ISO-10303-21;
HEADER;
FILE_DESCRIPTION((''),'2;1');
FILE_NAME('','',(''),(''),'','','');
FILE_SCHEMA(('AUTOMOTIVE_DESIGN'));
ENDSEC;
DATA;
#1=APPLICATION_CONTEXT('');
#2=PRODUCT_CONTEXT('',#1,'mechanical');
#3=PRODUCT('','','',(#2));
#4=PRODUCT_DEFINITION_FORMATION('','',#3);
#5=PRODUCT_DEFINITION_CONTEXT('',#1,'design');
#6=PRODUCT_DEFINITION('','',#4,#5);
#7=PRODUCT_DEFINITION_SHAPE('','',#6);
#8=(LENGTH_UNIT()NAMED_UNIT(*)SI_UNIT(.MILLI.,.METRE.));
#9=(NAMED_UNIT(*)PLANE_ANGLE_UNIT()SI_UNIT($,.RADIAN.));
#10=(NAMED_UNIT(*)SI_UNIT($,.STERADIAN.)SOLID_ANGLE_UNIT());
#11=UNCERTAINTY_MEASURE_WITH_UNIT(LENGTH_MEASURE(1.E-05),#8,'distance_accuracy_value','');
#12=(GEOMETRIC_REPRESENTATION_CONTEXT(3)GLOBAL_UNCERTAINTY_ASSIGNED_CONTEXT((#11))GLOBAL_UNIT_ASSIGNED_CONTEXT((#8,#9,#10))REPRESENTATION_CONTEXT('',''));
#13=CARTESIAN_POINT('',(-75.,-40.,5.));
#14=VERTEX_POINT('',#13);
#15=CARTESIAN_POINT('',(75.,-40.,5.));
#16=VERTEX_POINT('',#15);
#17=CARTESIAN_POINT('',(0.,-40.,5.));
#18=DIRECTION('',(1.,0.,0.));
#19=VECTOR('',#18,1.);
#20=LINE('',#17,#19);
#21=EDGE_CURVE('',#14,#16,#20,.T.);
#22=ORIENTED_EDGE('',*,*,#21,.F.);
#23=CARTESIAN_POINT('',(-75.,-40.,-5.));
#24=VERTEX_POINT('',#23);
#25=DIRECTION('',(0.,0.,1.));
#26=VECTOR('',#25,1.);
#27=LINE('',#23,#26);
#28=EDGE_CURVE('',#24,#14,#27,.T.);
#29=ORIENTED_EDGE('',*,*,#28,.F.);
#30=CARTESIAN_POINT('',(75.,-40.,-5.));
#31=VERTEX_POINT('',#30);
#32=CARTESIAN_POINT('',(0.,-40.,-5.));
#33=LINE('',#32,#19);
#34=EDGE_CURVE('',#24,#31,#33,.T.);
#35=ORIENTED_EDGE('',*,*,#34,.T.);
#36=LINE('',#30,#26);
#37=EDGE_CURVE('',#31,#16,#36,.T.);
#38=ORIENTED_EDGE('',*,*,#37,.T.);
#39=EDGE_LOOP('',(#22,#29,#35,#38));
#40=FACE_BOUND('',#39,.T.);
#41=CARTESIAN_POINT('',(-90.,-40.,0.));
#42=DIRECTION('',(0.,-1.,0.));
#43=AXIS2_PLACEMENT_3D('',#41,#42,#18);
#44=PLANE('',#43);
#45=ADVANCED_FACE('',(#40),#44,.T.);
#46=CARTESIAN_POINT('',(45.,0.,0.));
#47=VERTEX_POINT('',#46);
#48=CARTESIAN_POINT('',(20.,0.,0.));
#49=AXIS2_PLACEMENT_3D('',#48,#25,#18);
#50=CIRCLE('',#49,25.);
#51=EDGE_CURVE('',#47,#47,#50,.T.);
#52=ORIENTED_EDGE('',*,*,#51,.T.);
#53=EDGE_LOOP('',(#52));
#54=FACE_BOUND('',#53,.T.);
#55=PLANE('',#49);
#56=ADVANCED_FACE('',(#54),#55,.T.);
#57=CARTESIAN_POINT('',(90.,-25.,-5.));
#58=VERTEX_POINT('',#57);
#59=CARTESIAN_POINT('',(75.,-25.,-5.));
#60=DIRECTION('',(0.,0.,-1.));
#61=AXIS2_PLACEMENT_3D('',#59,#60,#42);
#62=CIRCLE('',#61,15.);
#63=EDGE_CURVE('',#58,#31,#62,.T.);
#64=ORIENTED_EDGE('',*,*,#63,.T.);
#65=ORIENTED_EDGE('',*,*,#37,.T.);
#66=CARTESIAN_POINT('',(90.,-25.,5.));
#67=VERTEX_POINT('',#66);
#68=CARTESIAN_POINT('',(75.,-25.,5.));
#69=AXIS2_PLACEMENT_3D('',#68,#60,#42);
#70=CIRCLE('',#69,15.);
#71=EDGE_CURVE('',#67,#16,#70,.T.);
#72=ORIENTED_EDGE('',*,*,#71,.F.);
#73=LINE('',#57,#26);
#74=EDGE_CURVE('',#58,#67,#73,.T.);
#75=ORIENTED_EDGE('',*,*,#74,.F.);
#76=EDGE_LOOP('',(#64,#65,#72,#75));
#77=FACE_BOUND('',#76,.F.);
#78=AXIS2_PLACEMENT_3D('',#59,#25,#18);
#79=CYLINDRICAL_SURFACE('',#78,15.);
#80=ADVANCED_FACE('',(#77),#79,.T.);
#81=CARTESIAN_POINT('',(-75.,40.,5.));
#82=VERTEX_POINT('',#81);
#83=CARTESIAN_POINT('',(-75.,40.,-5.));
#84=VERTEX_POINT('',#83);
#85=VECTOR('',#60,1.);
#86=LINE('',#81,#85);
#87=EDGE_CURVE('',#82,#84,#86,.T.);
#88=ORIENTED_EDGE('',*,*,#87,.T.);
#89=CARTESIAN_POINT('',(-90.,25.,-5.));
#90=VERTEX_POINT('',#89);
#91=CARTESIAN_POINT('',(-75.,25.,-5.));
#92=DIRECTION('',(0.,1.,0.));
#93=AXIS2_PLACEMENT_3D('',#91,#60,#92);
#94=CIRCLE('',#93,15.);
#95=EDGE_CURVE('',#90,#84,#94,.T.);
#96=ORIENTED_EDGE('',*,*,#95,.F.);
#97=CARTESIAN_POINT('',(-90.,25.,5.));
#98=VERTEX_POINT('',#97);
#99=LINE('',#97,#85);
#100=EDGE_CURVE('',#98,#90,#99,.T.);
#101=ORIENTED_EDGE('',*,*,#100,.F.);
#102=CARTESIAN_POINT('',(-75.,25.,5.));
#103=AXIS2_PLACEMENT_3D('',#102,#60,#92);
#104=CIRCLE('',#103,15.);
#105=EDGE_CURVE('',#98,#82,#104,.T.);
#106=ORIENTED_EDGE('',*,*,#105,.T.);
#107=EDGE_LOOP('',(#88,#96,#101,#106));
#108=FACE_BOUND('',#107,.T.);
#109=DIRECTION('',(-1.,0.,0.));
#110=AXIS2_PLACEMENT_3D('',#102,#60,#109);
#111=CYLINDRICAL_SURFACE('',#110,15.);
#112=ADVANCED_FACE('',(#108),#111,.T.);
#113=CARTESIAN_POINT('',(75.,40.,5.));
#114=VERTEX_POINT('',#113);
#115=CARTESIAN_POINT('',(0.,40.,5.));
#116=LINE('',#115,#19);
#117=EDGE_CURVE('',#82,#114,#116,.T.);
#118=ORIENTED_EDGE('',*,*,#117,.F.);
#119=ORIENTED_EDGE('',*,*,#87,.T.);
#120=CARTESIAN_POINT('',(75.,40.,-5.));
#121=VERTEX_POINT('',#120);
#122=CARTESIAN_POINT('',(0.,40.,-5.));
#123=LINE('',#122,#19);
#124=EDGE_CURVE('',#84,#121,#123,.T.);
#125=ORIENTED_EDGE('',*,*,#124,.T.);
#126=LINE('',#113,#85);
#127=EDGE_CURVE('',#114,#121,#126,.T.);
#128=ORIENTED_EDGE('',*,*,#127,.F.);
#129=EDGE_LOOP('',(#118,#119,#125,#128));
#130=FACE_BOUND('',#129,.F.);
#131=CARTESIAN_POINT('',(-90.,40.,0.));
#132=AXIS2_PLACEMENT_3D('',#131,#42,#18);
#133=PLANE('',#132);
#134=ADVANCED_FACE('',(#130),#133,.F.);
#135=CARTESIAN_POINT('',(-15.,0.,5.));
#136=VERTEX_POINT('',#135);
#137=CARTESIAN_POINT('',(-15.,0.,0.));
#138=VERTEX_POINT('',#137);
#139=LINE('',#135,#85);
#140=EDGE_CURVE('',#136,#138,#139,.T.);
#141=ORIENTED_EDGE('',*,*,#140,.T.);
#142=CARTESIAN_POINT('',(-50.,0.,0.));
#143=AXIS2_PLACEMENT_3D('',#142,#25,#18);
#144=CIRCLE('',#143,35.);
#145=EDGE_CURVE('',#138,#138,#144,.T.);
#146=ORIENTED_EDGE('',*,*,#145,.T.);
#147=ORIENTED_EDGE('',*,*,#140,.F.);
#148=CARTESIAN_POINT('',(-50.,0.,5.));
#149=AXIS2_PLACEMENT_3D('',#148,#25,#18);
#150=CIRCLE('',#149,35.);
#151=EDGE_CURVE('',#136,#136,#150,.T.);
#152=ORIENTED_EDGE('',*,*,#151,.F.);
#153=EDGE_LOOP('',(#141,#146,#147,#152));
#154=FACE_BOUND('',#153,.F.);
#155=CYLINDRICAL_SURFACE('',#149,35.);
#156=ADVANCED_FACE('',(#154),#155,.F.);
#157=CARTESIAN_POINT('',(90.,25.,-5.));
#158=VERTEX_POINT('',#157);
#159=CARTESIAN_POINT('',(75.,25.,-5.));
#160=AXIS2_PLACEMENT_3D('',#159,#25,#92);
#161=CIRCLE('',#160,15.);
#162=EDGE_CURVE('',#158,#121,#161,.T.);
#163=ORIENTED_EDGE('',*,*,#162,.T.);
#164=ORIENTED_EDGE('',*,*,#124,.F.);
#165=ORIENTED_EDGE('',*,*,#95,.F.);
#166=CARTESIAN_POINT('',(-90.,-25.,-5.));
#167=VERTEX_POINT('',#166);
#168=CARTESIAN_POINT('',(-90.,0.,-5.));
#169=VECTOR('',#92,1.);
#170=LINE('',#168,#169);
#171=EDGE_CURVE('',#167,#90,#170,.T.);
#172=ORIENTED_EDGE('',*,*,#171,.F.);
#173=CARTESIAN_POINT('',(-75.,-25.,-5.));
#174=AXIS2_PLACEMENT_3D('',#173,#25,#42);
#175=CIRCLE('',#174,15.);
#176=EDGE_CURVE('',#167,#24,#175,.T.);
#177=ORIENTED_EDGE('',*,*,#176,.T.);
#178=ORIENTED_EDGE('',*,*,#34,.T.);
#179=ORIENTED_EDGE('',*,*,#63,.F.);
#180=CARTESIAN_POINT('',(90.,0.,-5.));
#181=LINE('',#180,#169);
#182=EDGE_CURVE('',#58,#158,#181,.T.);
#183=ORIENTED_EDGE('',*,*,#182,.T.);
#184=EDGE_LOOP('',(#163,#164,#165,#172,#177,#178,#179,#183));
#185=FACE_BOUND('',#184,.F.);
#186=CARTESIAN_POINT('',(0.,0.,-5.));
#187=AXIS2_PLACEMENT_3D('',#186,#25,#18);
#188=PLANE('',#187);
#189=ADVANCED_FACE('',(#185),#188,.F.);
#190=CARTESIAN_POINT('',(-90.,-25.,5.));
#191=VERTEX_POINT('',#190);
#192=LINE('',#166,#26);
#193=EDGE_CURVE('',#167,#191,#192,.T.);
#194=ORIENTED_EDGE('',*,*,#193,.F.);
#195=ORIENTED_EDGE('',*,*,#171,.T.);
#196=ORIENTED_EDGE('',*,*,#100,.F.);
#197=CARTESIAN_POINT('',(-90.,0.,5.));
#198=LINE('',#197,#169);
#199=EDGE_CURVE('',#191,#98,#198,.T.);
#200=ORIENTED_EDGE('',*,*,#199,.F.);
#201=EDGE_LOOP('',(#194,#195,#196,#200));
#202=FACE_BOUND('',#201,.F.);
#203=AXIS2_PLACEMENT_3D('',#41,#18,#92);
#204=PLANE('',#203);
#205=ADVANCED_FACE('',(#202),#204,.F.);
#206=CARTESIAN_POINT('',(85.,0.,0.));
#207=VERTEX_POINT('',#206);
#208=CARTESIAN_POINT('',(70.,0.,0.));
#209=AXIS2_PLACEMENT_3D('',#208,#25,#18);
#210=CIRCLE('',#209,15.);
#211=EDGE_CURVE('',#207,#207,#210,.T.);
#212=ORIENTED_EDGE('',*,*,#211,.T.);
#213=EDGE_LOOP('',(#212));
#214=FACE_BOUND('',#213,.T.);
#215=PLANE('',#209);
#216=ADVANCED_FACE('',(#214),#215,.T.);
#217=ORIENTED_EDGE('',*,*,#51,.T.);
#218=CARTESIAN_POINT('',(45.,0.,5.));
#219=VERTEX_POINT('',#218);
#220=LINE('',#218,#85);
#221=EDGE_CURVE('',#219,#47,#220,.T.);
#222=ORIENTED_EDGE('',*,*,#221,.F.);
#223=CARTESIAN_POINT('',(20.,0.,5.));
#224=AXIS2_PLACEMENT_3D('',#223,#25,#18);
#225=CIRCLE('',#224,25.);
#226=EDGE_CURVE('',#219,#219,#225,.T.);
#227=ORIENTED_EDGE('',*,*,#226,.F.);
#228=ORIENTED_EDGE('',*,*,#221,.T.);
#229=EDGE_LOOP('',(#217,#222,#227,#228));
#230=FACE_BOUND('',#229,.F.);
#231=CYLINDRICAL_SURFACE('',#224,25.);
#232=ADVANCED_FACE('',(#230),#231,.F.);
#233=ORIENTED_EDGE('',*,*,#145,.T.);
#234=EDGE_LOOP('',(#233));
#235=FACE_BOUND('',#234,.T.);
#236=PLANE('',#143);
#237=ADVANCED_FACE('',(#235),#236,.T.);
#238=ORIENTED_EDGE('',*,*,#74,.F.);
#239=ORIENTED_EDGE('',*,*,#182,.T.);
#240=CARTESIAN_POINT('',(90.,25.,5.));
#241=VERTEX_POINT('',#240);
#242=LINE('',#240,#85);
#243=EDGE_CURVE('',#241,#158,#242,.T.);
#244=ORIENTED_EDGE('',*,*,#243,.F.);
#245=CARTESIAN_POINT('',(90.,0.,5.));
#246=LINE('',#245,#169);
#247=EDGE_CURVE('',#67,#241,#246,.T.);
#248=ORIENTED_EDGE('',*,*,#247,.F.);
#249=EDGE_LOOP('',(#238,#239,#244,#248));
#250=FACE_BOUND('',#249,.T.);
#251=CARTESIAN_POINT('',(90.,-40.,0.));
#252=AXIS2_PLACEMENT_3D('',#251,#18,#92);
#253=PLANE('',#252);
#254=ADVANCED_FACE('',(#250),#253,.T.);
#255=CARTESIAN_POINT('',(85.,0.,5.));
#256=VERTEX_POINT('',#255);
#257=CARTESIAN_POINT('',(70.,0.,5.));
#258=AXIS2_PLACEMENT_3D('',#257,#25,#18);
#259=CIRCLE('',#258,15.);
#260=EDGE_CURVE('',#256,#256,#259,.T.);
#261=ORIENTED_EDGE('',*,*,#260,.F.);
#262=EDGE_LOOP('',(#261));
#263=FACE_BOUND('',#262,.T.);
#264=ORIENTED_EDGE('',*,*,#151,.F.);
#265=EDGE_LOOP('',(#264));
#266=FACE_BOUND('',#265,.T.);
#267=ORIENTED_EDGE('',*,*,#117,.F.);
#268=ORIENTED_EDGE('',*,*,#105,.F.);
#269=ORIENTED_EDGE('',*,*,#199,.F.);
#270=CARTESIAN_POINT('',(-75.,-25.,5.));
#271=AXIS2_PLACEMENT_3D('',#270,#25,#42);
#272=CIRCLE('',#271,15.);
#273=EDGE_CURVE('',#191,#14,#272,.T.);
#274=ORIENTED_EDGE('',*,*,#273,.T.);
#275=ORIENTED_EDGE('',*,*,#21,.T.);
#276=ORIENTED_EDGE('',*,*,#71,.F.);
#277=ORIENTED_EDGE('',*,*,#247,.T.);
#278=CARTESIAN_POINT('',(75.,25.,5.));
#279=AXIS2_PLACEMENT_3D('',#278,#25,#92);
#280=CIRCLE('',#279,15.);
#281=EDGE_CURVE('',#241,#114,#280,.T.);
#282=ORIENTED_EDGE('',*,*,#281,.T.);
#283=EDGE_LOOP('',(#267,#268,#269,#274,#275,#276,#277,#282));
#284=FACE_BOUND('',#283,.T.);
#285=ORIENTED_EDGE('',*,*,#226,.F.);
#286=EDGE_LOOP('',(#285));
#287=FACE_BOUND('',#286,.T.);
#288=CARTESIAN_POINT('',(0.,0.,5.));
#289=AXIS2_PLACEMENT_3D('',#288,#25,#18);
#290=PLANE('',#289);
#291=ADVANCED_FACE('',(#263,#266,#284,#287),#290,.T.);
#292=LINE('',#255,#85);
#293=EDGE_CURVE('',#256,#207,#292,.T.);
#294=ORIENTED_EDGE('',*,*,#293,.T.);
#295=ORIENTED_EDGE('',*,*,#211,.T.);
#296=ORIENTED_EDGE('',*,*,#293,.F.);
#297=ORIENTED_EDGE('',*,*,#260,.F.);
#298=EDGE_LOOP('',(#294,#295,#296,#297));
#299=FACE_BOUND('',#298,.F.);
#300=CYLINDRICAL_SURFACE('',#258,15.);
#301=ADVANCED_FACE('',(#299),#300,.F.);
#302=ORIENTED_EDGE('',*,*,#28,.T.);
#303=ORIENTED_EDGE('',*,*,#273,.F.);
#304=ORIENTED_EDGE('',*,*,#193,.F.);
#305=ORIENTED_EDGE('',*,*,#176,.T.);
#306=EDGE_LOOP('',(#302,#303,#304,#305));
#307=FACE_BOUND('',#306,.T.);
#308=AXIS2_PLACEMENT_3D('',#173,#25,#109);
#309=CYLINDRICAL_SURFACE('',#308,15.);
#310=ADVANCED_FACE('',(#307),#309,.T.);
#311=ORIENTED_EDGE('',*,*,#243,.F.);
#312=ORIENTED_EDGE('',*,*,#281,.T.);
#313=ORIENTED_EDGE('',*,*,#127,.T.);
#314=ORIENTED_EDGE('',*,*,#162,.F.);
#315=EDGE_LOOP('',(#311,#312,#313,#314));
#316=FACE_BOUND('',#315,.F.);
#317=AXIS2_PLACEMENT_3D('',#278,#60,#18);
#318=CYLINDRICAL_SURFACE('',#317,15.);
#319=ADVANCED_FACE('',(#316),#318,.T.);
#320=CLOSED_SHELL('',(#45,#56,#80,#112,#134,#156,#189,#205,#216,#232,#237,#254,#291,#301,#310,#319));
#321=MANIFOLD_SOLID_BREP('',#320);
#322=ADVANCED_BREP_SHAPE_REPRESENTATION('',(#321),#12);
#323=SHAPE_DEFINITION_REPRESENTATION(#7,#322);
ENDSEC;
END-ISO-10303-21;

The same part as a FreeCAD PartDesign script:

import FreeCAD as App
import Part
import Sketcher

V = App.Vector
Q = App.Units.Quantity


def edges_at(feature, points):
    """Names of the edges that pass closest to the given points."""
    edges = feature.Shape.Edges
    near = lambda p: min(range(len(edges)), key=lambda i: edges[i].distToShape(Part.Vertex(*p))[0])
    return sorted({f"Edge{near(p) + 1}" for p in points})

doc = App.newDocument("Part")
params = doc.addObject("Spreadsheet::Sheet", "Params")
for row, (alias, value) in enumerate([
    ("sketch1_width", "180 mm"),
    ("sketch1_height", "80 mm"),
    ("pad1_length", "10 mm"),
    ("fillet_radius", "15 mm"),
    ("sketch2_diameter", "70 mm"),
    ("sketch2_diameter2", "50 mm"),
    ("sketch2_diameter3", "30 mm"),
    ("pocket1_length", "5 mm"),
], start=1):
    params.set(f"A{row}", alias)
    params.set(f"B{row}", "=" + value)
    params.setAlias(f"B{row}", alias)

body = doc.addObject("PartDesign::Body", "Body")

sketch1 = body.newObject("Sketcher::SketchObject", "Sketch")
sketch1.AttachmentSupport = (doc.getObject("XY_Plane"), [""])
sketch1.MapMode = "FlatFace"
sketch1.addGeometry([
    Part.LineSegment(V(-90, 40, 0), V(-90, -40, 0)),
    Part.LineSegment(V(-90, -40, 0), V(90, -40, 0)),
    Part.LineSegment(V(90, -40, 0), V(90, 40, 0)),
    Part.LineSegment(V(90, 40, 0), V(-90, 40, 0)),
], False)
sketch1.addConstraint([
    Sketcher.Constraint("Coincident", 0, 2, 1, 1),
    Sketcher.Constraint("Coincident", 1, 2, 2, 1),
    Sketcher.Constraint("Coincident", 2, 2, 3, 1),
    Sketcher.Constraint("Coincident", 3, 2, 0, 1),
    Sketcher.Constraint("Vertical", 0),
    Sketcher.Constraint("Horizontal", 1),
    Sketcher.Constraint("Vertical", 2),
    Sketcher.Constraint("Horizontal", 3),
    Sketcher.Constraint("Symmetric", 0, 2, 2, 2, -1, 1),
    Sketcher.Constraint("DistanceX", 1, 1, 1, 2, Q("180 mm")),
    Sketcher.Constraint("DistanceY", 0, 2, 0, 1, Q("80 mm")),
])
sketch1.setExpression("Constraints[9]", "Params.sketch1_width")
sketch1.setExpression("Constraints[10]", "Params.sketch1_height")
pad1 = body.newObject("PartDesign::Pad", "Pad")
pad1.Profile = sketch1
pad1.setExpression("Length", "Params.pad1_length")
pad1.Midplane = True
doc.recompute()

fillet = body.newObject("PartDesign::Fillet", "Fillet")
fillet.Base = (pad1, edges_at(pad1, [
    (90, 40, 0),
    (-90, 40, 0),
    (90, -40, 0),
    (-90, -40, 0),
]))
fillet.setExpression("Radius", "Params.fillet_radius")

sketch2 = body.newObject("Sketcher::SketchObject", "Sketch001")
sketch2.AttachmentSupport = (doc.getObject("XY_Plane"), [""])
sketch2.MapMode = "FlatFace"
sketch2.AttachmentOffset = App.Placement(V(0, 0, 5), App.Rotation())
sketch2.addGeometry([
    Part.Circle(V(-50, 0, 0), V(0, 0, 1), 35),
    Part.Circle(V(20, 0, 0), V(0, 0, 1), 25),
    Part.Circle(V(70, 0, 0), V(0, 0, 1), 15),
], False)
sketch2.addConstraint([
    Sketcher.Constraint("PointOnObject", 0, 3, -1),
    Sketcher.Constraint("PointOnObject", 1, 3, -1),
    Sketcher.Constraint("PointOnObject", 2, 3, -1),
    Sketcher.Constraint("Diameter", 0, Q("70 mm")),
    Sketcher.Constraint("Diameter", 1, Q("50 mm")),
    Sketcher.Constraint("Diameter", 2, Q("30 mm")),
    Sketcher.Constraint("DistanceX", 0, 3, -1, 1, Q("50 mm")),
    Sketcher.Constraint("DistanceX", -1, 1, 1, 3, Q("20 mm")),
    Sketcher.Constraint("DistanceX", -1, 1, 2, 3, Q("70 mm")),
])
sketch2.setExpression("Constraints[3]", "Params.sketch2_diameter")
sketch2.setExpression("Constraints[4]", "Params.sketch2_diameter2")
sketch2.setExpression("Constraints[5]", "Params.sketch2_diameter3")
pocket1 = body.newObject("PartDesign::Pocket", "Pocket")
pocket1.Profile = sketch2
pocket1.setExpression("Length", "Params.pocket1_length")

doc.recompute()
